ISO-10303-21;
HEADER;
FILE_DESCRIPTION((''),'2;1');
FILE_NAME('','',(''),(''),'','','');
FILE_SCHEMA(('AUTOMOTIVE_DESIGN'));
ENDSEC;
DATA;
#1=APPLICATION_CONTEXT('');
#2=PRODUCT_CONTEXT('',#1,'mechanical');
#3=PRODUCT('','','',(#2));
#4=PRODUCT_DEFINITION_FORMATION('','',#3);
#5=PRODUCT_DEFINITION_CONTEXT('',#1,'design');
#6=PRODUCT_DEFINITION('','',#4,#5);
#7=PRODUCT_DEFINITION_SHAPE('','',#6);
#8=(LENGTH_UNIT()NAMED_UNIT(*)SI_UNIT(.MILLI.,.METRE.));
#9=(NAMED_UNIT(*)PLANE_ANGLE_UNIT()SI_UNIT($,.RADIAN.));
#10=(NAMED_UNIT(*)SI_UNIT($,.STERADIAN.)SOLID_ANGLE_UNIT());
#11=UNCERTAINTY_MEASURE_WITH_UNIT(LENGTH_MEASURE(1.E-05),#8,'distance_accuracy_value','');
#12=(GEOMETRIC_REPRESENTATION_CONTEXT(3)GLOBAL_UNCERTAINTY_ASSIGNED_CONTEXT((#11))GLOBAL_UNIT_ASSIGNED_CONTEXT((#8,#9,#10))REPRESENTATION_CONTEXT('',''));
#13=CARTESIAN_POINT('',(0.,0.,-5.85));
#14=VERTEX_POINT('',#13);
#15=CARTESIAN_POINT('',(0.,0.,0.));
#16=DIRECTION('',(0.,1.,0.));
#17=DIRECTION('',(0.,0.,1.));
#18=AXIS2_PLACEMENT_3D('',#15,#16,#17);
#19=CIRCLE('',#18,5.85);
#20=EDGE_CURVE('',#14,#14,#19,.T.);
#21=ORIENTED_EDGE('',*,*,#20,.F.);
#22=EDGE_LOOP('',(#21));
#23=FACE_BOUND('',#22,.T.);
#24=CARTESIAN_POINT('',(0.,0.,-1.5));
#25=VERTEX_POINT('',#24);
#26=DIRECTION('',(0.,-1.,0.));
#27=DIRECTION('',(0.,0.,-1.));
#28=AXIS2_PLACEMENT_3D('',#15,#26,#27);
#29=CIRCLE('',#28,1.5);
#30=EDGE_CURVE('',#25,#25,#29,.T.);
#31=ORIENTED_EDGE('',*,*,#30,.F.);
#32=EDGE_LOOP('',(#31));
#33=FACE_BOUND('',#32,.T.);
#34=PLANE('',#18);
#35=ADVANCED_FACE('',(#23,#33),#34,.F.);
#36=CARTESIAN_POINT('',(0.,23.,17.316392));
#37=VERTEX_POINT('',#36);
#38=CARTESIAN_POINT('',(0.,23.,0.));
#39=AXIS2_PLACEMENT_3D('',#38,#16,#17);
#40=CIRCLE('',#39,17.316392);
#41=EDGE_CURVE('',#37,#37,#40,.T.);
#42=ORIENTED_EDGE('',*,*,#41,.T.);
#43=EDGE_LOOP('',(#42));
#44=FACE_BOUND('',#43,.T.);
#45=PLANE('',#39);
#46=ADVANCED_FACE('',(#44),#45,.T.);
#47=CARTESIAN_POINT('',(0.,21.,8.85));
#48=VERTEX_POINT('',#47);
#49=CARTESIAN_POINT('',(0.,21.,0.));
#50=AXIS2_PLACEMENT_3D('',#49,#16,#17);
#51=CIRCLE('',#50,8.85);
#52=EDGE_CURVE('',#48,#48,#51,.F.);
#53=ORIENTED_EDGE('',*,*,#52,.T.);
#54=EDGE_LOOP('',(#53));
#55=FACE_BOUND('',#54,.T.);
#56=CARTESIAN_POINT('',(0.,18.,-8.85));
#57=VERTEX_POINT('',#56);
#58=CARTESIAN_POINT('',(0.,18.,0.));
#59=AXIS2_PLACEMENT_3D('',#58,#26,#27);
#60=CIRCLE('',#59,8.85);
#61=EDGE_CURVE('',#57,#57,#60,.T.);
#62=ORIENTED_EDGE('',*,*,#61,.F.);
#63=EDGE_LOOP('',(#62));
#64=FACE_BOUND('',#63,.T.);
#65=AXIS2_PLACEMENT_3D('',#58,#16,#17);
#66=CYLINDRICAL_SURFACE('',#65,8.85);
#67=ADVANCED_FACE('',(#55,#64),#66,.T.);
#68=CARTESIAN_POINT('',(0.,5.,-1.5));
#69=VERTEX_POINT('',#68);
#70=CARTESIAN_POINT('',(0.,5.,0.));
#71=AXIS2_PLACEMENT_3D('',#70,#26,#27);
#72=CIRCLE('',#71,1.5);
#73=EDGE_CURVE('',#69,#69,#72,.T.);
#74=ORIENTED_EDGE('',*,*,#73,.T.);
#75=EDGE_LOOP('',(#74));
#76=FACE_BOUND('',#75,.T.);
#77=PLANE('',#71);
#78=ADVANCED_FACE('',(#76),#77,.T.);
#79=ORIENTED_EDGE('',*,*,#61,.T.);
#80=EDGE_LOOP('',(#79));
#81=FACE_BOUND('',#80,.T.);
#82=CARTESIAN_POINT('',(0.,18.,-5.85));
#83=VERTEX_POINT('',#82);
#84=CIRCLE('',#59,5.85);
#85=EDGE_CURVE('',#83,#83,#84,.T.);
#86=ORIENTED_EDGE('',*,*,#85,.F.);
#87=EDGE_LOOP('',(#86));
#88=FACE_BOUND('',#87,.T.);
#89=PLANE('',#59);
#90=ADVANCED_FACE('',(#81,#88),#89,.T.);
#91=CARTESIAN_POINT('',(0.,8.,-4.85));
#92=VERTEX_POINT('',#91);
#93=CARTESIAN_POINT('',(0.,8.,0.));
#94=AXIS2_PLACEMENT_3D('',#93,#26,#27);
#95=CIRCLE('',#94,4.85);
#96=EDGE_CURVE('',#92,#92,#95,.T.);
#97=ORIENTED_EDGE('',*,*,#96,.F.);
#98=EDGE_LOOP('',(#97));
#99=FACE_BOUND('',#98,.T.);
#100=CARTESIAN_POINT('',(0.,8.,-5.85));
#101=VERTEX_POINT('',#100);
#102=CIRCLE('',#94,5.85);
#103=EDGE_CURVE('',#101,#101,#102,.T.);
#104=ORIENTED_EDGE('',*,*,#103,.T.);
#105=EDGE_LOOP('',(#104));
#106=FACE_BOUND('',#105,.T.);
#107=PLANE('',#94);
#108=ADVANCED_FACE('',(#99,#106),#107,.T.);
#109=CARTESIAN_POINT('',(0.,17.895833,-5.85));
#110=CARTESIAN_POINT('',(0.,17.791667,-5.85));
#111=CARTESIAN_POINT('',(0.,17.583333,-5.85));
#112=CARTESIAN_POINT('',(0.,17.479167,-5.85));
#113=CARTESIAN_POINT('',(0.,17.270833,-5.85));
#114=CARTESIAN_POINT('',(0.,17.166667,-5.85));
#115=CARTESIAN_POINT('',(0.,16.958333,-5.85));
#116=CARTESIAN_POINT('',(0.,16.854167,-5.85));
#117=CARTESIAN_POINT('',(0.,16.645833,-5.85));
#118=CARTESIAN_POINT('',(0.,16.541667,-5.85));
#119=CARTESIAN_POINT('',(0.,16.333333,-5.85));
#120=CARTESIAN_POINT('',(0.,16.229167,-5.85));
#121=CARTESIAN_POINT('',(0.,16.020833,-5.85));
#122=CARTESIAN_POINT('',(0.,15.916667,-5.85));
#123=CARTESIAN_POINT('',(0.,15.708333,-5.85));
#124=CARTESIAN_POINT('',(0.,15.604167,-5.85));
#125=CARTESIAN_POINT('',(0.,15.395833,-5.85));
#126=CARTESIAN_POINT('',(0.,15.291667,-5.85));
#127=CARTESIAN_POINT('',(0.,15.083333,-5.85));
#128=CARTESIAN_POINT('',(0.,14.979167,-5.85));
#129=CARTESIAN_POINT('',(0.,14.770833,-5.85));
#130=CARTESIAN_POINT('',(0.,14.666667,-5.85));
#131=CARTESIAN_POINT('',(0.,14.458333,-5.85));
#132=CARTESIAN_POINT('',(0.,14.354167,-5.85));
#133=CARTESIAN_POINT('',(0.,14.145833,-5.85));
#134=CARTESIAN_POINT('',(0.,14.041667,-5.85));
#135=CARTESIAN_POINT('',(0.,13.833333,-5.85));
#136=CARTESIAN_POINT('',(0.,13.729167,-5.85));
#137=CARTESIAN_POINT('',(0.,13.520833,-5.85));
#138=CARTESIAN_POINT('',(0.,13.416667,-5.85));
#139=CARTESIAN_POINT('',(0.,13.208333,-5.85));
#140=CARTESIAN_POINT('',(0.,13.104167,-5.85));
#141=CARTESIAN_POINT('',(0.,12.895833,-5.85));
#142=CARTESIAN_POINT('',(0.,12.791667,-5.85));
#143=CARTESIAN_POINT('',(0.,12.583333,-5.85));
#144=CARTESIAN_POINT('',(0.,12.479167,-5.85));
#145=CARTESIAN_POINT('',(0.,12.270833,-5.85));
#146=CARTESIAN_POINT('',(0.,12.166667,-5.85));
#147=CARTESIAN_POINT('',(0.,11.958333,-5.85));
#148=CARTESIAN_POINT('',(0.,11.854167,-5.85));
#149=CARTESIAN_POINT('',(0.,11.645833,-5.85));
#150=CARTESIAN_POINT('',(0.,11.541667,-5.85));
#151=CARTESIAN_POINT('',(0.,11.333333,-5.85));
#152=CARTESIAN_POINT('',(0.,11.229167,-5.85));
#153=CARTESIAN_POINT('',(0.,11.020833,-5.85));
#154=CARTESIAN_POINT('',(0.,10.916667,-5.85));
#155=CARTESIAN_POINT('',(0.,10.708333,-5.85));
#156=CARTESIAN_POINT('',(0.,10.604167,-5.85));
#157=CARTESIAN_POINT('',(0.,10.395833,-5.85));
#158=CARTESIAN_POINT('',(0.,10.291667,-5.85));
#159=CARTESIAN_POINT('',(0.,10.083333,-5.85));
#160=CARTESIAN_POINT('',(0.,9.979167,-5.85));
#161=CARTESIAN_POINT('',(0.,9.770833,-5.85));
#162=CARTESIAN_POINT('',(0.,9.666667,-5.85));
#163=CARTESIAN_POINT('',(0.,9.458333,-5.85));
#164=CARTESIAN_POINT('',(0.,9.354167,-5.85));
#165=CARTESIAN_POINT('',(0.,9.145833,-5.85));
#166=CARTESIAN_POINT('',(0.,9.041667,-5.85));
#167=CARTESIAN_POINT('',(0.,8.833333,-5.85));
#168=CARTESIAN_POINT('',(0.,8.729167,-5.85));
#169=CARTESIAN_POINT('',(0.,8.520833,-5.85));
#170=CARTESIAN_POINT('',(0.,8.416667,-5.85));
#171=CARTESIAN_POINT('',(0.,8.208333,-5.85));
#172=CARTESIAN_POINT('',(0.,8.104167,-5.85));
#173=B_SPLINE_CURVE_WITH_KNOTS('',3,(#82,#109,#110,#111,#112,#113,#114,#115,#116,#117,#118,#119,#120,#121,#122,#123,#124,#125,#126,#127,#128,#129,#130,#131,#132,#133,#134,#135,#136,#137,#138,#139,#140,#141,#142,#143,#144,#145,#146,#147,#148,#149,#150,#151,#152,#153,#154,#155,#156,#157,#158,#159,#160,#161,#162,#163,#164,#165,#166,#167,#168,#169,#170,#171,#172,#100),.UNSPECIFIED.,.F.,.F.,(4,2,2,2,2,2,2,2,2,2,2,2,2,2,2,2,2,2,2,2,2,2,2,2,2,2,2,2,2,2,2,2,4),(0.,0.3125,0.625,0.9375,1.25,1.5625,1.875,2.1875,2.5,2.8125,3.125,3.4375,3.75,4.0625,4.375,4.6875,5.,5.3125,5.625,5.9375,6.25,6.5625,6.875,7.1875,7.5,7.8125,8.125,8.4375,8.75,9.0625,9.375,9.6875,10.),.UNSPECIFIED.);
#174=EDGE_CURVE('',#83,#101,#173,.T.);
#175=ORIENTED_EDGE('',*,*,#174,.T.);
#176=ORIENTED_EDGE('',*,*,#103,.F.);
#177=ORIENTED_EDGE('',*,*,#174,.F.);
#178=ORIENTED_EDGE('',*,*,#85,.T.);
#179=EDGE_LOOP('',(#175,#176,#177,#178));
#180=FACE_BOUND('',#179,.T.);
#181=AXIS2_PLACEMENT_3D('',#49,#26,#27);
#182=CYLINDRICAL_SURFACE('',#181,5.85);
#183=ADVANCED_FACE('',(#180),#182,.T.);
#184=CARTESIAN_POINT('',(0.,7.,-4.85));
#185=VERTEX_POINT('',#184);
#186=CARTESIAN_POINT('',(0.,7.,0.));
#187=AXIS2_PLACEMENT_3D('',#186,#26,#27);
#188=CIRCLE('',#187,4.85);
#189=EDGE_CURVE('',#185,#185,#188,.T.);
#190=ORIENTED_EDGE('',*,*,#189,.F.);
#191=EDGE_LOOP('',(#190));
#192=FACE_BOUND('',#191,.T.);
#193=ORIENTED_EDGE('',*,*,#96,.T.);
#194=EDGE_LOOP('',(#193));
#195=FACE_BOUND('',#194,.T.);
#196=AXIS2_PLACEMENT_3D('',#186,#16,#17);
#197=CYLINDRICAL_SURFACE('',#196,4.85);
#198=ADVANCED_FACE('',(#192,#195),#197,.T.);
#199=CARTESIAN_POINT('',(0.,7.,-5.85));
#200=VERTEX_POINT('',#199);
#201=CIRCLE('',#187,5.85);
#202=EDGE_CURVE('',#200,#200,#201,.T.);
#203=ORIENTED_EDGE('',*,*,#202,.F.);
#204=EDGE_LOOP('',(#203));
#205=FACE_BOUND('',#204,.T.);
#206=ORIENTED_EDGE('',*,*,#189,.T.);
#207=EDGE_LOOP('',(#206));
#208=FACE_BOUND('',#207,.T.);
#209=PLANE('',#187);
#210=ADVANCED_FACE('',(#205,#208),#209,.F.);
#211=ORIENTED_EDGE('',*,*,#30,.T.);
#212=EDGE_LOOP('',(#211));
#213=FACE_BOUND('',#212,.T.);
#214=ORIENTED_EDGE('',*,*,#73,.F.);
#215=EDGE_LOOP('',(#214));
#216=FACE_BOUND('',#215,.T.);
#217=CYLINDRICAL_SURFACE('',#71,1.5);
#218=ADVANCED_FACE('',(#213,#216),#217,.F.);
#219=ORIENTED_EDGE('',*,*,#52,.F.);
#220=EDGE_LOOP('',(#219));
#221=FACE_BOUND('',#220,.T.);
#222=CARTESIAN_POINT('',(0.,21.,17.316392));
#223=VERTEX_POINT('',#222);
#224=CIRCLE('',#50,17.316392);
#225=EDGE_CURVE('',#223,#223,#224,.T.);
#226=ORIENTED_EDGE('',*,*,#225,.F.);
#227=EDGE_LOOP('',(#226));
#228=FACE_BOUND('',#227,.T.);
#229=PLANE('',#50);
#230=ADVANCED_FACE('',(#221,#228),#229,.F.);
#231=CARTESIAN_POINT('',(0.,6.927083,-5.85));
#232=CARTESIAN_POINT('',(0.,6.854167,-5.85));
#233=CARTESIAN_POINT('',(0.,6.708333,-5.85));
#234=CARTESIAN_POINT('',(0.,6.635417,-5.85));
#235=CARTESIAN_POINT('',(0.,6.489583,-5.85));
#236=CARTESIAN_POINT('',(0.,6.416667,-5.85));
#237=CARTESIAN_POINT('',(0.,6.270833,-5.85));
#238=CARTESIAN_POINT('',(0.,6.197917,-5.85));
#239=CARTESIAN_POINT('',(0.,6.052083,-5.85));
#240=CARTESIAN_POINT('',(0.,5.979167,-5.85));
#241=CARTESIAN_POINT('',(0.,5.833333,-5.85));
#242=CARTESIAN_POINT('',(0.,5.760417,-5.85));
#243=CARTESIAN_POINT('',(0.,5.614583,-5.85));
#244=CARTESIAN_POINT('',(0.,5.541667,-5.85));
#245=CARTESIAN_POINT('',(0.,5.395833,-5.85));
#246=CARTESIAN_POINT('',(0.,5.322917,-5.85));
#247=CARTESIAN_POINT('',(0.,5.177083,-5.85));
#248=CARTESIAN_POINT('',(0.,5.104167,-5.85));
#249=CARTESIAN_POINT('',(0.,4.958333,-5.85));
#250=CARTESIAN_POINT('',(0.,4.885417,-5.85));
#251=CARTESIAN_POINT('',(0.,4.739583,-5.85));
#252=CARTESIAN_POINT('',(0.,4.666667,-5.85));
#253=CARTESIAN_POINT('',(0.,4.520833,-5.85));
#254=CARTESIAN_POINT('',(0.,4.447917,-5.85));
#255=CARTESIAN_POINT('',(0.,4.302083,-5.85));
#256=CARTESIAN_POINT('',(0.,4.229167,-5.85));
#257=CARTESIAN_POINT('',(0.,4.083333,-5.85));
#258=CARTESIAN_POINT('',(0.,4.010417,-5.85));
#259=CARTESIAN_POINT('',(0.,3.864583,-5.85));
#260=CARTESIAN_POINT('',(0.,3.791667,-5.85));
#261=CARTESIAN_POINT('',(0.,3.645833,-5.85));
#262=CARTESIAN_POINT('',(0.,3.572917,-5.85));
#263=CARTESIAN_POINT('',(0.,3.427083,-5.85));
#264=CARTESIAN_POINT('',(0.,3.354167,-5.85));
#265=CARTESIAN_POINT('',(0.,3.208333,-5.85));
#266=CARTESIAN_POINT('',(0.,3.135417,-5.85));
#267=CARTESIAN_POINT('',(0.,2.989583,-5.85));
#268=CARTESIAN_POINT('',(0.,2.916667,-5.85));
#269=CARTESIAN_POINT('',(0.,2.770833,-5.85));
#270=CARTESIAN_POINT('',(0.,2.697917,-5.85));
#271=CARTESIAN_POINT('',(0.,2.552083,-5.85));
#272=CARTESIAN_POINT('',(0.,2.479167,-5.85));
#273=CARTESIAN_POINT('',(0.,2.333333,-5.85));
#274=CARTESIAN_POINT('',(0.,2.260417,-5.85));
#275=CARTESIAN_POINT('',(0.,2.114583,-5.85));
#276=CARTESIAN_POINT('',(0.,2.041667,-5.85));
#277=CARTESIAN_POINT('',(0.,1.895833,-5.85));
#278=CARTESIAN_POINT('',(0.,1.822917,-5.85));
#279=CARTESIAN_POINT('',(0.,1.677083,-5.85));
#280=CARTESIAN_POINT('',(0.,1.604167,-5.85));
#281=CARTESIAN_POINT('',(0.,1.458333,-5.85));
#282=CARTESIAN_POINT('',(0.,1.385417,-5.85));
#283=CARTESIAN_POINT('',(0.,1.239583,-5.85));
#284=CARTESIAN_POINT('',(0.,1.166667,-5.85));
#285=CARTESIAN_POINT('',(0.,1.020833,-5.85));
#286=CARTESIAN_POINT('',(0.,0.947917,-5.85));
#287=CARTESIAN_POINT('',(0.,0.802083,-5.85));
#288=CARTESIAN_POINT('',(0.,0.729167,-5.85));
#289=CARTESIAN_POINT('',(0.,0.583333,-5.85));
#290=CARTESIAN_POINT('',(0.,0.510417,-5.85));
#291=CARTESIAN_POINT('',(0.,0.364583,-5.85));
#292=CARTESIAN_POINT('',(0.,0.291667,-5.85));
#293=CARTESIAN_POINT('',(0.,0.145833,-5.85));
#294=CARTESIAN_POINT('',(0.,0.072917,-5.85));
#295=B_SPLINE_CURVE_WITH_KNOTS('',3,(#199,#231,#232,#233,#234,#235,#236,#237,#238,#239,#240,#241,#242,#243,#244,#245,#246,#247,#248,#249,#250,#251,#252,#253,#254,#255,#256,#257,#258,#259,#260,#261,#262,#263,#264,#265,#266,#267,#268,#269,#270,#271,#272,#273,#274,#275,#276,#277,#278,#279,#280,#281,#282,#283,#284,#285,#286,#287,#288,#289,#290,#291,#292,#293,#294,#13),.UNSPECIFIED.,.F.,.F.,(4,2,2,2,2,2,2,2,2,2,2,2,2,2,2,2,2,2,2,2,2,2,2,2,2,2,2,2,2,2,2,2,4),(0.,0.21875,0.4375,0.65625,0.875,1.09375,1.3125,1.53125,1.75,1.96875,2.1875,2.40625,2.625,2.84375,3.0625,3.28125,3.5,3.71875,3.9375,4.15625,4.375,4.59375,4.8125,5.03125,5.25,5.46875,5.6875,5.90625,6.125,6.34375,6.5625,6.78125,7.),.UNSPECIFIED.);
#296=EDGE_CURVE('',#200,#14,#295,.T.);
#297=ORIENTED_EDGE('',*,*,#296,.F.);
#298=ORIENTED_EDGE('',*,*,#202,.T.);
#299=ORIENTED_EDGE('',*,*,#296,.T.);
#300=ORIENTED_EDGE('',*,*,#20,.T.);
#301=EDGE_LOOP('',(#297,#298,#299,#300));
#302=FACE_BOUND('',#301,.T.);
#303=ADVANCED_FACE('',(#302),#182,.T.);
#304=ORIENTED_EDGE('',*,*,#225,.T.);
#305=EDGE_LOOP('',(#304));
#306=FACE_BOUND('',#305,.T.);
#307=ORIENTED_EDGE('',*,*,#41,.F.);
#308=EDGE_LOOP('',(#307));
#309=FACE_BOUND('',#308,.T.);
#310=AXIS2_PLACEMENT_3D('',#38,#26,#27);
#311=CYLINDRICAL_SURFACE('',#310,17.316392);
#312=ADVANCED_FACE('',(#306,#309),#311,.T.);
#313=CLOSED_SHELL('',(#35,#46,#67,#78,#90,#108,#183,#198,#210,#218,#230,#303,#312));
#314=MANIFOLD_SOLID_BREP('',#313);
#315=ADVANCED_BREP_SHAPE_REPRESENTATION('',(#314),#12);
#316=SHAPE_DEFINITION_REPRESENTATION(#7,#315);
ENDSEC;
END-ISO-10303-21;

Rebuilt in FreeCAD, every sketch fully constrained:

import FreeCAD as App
import Part
import Sketcher
from FreeCAD import Vector

doc = App.newDocument("Part")
body = doc.addObject("PartDesign::Body", "Body")

sketch1 = body.newObject("Sketcher::SketchObject", "Sketch")
sketch1.AttachmentSupport = (doc.getObject("XZ_Plane"), [""])
sketch1.MapMode = "FlatFace"
sketch1.addGeometry(Part.Circle(Vector(0, 0, 0), Vector(0, 0, 1), 6), False)
sketch1.addConstraint([
    Sketcher.Constraint("Coincident", 0, 3, -1, 1),
    Sketcher.Constraint("Diameter", 0, 11.7),
])
pad1 = body.newObject("PartDesign::Pad", "Pad")
pad1.Profile = sketch1
pad1.Length = 21
pad1.Reversed = True

sketch2 = body.newObject("Sketcher::SketchObject", "Sketch001")
sketch2.AttachmentSupport = (doc.getObject("XZ_Plane"), [""])
sketch2.MapMode = "FlatFace"
sketch2.AttachmentOffset = App.Placement(Vector(0, 0, -21), App.Rotation())
sketch2.addGeometry(Part.Circle(Vector(0, 0, 0), Vector(0, 0, 1), 17), False)
sketch2.addConstraint([
    Sketcher.Constraint("Coincident", 0, 3, -1, 1),
    Sketcher.Constraint("Diameter", 0, 34.632784),
])
pad2 = body.newObject("PartDesign::Pad", "Pad001")
pad2.Profile = sketch2
pad2.Length = 2
pad2.Reversed = True

sketch3 = body.newObject("Sketcher::SketchObject", "Sketch002")
sketch3.AttachmentSupport = (doc.getObject("XZ_Plane"), [""])
sketch3.MapMode = "FlatFace"
sketch3.AttachmentOffset = App.Placement(Vector(0, 0, -7), App.Rotation())
sketch3.addGeometry([
    Part.Circle(Vector(0, 0, 0), Vector(0, 0, 1), 5.8),
    Part.Circle(Vector(0, 0, 0), Vector(0, 0, 1), 4.8),
], False)
sketch3.addConstraint([
    Sketcher.Constraint("Coincident", 0, 3, -1, 1),
    Sketcher.Constraint("Coincident", 1, 3, -1, 1),
    Sketcher.Constraint("Diameter", 0, 11.7),
    Sketcher.Constraint("Diameter", 1, 9.7),
])
pocket1 = body.newObject("PartDesign::Pocket", "Pocket")
pocket1.Profile = sketch3
pocket1.Length = 1

sketch4 = body.newObject("Sketcher::SketchObject", "Sketch003")
sketch4.AttachmentSupport = (doc.getObject("XZ_Plane"), [""])
sketch4.MapMode = "FlatFace"
sketch4.addGeometry(Part.Circle(Vector(0, 0, 0), Vector(0, 0, 1), 1.5), False)
sketch4.addConstraint([
    Sketcher.Constraint("Coincident", 0, 3, -1, 1),
    Sketcher.Constraint("Diameter", 0, 3.0),
])
pocket2 = body.newObject("PartDesign::Pocket", "Pocket001")
pocket2.Profile = sketch4
pocket2.Length = 5

sketch5 = body.newObject("Sketcher::SketchObject", "Sketch004")
sketch5.AttachmentSupport = (doc.getObject("XZ_Plane"), [""])
sketch5.MapMode = "FlatFace"
sketch5.AttachmentOffset = App.Placement(Vector(0, 0, -18), App.Rotation())
sketch5.addGeometry([
    Part.Circle(Vector(0, 0, 0), Vector(0, 0, 1), 9),
    Part.Circle(Vector(0, 0, 0), Vector(0, 0, 1), 6),
], False)
sketch5.addConstraint([
    Sketcher.Constraint("Coincident", 0, 3, -1, 1),
    Sketcher.Constraint("Coincident", 1, 3, -1, 1),
    Sketcher.Constraint("Diameter", 0, 17.7),
    Sketcher.Constraint("Diameter", 1, 11.7),
])
pad3 = body.newObject("PartDesign::Pad", "Pad002")
pad3.Profile = sketch5
pad3.Length = 3
pad3.Reversed = True

doc.recompute()
